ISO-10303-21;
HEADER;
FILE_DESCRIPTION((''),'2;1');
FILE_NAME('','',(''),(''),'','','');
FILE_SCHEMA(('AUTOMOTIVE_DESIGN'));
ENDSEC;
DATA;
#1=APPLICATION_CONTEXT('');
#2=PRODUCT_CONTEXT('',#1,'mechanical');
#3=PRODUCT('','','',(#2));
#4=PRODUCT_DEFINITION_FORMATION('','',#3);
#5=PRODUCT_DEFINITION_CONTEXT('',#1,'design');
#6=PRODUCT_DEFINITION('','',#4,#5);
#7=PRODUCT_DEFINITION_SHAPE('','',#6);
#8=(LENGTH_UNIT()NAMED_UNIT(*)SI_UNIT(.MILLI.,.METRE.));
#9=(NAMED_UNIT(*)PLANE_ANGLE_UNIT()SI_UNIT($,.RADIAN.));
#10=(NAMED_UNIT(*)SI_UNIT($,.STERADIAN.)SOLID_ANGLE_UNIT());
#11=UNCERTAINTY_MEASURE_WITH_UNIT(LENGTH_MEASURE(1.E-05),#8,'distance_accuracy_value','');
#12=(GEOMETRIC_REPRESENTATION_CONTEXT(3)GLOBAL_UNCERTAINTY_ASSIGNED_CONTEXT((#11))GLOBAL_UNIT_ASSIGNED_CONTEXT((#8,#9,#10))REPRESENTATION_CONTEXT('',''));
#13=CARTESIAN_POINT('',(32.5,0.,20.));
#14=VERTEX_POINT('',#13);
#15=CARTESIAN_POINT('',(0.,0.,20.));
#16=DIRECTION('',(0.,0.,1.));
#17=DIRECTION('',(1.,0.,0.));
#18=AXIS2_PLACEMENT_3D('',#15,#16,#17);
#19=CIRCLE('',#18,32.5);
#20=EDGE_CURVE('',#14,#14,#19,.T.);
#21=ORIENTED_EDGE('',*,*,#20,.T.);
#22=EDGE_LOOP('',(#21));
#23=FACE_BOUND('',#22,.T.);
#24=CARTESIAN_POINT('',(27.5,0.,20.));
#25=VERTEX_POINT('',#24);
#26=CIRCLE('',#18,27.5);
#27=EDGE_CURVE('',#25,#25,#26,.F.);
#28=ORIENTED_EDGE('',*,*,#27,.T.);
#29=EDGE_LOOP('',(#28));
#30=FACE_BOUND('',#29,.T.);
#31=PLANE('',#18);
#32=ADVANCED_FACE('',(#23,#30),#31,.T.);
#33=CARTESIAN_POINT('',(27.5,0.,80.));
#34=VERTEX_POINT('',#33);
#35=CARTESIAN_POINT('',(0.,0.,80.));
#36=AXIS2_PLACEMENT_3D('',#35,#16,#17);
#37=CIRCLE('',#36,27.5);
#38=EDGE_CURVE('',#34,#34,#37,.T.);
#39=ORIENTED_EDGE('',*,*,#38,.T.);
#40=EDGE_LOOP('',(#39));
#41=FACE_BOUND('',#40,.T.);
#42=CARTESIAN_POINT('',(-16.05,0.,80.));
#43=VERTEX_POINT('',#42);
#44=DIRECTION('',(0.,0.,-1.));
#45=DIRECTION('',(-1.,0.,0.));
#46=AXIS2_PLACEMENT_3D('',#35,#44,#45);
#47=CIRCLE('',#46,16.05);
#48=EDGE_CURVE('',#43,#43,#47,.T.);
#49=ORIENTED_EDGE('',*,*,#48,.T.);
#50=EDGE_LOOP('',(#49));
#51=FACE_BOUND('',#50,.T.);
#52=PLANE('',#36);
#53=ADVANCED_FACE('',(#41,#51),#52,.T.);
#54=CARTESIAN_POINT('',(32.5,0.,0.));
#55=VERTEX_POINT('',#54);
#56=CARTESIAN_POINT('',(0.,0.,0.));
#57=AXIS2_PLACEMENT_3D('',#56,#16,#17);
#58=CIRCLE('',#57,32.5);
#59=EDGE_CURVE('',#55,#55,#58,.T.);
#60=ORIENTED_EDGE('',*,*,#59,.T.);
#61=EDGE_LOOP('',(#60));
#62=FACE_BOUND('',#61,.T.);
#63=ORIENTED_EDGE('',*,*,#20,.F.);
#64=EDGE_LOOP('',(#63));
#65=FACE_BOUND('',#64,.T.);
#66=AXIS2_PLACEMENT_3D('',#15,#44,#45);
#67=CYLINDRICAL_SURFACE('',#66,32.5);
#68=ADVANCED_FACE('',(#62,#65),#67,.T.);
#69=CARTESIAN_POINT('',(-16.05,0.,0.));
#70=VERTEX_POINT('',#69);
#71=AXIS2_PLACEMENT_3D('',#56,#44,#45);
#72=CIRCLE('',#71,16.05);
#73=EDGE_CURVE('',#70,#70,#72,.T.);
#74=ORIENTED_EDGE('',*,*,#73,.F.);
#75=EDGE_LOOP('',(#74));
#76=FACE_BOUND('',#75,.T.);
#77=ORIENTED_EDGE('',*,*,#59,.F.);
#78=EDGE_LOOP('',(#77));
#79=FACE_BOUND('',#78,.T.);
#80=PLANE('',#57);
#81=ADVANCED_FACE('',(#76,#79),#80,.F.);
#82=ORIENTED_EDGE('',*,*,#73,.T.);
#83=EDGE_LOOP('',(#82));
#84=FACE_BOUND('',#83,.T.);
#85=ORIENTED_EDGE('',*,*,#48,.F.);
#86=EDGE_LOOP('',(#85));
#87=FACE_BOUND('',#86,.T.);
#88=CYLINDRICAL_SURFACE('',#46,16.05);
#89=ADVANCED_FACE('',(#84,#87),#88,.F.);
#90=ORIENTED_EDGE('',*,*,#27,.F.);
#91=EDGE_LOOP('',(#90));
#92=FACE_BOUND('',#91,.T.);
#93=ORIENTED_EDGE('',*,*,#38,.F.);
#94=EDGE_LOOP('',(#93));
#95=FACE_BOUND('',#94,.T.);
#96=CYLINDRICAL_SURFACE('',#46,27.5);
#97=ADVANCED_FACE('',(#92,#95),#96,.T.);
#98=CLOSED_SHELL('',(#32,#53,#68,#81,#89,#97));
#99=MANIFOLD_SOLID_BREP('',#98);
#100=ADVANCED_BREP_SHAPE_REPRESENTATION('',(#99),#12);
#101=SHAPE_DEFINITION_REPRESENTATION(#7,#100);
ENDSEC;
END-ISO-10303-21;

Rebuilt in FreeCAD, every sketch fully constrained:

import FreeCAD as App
import Part
import Sketcher
Q = App.Units.Quantity

doc = App.newDocument("Part")
params = doc.addObject("Spreadsheet::Sheet", "Params")
for row, (alias, value) in enumerate([
    ("sketch1_diameter", "65 mm"),
    ("pad1_length", "20 mm"),
    ("sketch2_diameter", "55 mm"),
    ("pad2_length", "80 mm"),
    ("sketch3_diameter", "32.1 mm"),
], start=1):
    params.set(f"A{row}", alias)
    params.set(f"B{row}", "=" + value)
    params.setAlias(f"B{row}", alias)

body = doc.addObject("PartDesign::Body", "Body")

# Sketch on XY plane
sketch1 = body.newObject("Sketcher::SketchObject", "Sketch")
sketch1.AttachmentSupport = (doc.getObject("XY_Plane"), [""])
sketch1.MapMode = "FlatFace"
sketch1.addGeometry(Part.Circle(App.Vector(0, 0, 0), App.Vector(0, 0, 1), 32), False)
sketch1.addConstraint([
    Sketcher.Constraint("Coincident", 0, 3, -1, 1),
    Sketcher.Constraint("Diameter", 0, Q("65 mm")),
])
sketch1.setExpression("Constraints[1]", "Params.sketch1_diameter")
pad1 = body.newObject("PartDesign::Pad", "Pad")
pad1.Profile = sketch1
pad1.setExpression("Length", "Params.pad1_length")

# Sketch on XY plane
sketch2 = body.newObject("Sketcher::SketchObject", "Sketch001")
sketch2.AttachmentSupport = (doc.getObject("XY_Plane"), [""])
sketch2.MapMode = "FlatFace"
sketch2.addGeometry(Part.Circle(App.Vector(0, 0, 0), App.Vector(0, 0, 1), 28), False)
sketch2.addConstraint([
    Sketcher.Constraint("Coincident", 0, 3, -1, 1),
    Sketcher.Constraint("Diameter", 0, Q("55 mm")),
])
sketch2.setExpression("Constraints[1]", "Params.sketch2_diameter")
pad2 = body.newObject("PartDesign::Pad", "Pad001")
pad2.Profile = sketch2
pad2.setExpression("Length", "Params.pad2_length")

# Sketch on XY plane
sketch3 = body.newObject("Sketcher::SketchObject", "Sketch002")
sketch3.AttachmentSupport = (doc.getObject("XY_Plane"), [""])
sketch3.MapMode = "FlatFace"
sketch3.addGeometry(Part.Circle(App.Vector(0, 0, 0), App.Vector(0, 0, 1), 16), False)
sketch3.addConstraint([
    Sketcher.Constraint("Coincident", 0, 3, -1, 1),
    Sketcher.Constraint("Diameter", 0, Q("32.1 mm")),
])
sketch3.setExpression("Constraints[1]", "Params.sketch3_diameter")
pocket1 = body.newObject("PartDesign::Pocket", "Pocket")
pocket1.Profile = sketch3
pocket1.Type = "ThroughAll"
pocket1.Reversed = True

doc.recompute()
